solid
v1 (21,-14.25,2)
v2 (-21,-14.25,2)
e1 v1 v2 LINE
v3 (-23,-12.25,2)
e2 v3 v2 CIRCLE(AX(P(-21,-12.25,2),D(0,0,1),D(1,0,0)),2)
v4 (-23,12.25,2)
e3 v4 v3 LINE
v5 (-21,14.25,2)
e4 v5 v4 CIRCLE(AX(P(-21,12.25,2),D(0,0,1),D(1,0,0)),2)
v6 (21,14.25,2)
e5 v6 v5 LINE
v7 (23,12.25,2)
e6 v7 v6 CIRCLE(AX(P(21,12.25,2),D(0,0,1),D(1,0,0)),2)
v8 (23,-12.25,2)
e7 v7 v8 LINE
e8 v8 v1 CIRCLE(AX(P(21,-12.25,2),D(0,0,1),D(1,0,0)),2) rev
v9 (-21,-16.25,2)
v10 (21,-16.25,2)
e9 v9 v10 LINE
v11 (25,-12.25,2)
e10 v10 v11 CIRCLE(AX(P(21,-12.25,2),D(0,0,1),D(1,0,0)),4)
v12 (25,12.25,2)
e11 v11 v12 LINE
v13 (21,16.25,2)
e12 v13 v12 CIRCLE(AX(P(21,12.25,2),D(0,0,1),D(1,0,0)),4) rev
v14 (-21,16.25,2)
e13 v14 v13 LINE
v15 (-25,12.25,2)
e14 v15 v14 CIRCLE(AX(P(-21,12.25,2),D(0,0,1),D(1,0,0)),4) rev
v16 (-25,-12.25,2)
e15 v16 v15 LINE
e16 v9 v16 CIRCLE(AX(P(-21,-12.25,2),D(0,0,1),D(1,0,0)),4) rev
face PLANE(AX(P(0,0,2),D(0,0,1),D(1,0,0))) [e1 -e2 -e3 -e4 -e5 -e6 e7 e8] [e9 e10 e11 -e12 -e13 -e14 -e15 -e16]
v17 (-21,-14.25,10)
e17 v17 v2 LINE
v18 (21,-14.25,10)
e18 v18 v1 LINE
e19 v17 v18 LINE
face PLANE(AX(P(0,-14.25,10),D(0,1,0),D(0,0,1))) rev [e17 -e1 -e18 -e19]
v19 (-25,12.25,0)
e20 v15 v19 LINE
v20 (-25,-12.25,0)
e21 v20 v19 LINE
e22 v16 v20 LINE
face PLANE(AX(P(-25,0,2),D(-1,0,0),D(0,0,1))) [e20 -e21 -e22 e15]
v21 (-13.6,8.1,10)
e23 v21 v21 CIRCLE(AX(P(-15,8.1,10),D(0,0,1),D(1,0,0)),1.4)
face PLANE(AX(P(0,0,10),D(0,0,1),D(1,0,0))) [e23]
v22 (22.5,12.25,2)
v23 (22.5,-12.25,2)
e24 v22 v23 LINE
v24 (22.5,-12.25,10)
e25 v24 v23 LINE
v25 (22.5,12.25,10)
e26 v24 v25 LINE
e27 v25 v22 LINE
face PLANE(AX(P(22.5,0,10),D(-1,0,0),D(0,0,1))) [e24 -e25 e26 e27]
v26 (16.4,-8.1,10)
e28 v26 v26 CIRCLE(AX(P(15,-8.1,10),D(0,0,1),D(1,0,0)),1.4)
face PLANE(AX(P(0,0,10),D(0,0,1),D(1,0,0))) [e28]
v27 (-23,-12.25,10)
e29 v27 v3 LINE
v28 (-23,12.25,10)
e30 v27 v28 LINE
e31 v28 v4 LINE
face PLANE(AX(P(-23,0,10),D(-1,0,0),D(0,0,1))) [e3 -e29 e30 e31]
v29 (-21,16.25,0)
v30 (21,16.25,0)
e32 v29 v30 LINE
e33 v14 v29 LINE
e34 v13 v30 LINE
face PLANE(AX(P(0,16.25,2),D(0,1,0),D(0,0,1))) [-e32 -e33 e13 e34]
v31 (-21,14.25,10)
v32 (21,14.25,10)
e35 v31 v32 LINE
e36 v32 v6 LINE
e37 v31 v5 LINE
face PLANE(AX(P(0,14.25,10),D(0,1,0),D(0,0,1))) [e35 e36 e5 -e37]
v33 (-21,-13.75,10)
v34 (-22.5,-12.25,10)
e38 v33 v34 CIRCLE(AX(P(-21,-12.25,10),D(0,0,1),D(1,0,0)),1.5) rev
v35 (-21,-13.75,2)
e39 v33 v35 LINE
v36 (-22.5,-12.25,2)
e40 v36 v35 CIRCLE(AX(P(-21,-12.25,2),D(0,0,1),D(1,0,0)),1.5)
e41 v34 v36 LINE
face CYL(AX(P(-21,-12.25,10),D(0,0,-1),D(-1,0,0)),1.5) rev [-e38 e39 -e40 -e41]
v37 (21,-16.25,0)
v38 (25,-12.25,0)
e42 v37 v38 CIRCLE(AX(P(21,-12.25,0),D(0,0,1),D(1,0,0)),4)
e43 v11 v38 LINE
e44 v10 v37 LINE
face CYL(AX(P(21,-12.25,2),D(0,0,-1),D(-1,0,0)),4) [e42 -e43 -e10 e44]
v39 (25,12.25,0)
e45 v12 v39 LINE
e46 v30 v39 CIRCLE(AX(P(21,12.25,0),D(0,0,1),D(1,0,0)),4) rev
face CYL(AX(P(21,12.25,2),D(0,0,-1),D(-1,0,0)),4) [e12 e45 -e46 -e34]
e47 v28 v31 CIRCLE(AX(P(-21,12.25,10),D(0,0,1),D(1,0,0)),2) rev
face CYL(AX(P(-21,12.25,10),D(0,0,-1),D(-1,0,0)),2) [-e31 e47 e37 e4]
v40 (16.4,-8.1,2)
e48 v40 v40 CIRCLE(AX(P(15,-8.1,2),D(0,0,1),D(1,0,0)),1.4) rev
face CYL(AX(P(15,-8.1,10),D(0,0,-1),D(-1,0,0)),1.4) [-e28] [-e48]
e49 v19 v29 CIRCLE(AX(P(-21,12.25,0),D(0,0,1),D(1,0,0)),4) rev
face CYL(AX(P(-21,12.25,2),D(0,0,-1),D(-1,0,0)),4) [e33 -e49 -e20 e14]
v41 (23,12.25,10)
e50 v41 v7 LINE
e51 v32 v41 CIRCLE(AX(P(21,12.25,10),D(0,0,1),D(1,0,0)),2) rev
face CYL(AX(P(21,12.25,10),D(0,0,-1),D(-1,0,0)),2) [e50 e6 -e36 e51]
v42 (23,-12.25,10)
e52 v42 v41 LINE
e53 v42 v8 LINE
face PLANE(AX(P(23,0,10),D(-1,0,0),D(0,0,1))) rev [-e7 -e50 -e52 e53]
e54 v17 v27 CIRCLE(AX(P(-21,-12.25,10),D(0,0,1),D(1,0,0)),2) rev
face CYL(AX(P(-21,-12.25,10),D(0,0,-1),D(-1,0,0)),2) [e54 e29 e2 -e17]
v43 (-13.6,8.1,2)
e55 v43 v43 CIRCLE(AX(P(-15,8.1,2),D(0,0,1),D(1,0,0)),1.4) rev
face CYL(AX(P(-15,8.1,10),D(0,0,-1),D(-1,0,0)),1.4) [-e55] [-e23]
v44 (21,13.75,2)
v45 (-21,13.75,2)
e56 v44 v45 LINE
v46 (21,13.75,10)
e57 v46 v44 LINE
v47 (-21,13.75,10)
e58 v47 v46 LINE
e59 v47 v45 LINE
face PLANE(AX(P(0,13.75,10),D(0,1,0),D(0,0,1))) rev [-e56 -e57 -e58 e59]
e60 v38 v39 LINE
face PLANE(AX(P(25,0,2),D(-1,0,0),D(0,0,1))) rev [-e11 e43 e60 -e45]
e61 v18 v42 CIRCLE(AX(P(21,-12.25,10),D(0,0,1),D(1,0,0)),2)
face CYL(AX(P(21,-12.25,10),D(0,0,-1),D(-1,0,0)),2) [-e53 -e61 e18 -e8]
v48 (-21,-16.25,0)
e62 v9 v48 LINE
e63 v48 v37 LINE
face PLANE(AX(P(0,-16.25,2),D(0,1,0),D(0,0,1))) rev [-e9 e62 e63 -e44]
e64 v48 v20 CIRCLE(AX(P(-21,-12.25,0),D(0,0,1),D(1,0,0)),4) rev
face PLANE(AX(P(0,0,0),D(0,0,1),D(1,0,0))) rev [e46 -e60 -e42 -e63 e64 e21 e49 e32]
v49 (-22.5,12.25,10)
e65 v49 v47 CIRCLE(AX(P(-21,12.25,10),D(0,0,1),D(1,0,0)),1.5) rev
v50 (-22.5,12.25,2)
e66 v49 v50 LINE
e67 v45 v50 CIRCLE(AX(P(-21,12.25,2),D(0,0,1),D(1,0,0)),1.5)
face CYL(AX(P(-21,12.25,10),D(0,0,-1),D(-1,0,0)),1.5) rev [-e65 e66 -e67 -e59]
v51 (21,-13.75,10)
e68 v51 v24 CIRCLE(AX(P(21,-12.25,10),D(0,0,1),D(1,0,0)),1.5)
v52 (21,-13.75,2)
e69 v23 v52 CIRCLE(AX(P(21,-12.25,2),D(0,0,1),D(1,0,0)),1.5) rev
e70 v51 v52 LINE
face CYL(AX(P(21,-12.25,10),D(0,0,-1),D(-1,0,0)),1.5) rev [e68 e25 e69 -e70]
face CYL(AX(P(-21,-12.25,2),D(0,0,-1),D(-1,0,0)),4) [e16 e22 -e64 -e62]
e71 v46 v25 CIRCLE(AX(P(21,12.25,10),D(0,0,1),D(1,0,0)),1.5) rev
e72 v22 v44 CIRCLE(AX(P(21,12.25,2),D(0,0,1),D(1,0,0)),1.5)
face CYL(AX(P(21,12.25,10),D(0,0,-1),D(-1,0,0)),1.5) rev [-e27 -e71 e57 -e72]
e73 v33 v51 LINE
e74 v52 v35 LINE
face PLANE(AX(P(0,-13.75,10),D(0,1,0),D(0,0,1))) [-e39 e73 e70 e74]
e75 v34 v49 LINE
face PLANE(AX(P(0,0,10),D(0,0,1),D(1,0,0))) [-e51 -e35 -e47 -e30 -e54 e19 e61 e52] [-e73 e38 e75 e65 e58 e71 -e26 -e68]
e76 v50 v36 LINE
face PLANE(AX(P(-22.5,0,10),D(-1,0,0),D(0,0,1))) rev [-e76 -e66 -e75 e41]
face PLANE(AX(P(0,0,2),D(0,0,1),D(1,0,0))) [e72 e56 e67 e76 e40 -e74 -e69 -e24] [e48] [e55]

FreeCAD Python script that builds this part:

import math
import FreeCAD as App
import Part
import Sketcher

V = App.Vector

doc = App.newDocument("Part")
body = doc.addObject("PartDesign::Body", "Body")

# Sketch on XY plane
sketch1 = doc.addObject("Sketcher::SketchObject", "Sketch")
body.addObject(sketch1)
sketch1.AttachmentSupport = (doc.XY_Plane, [""])
sketch1.MapMode = "FlatFace"
sketch1.addGeometry([
    Part.ArcOfCircle(Part.Circle(V(-21, 12.3, 0), V(0, 0, 1), 4), math.radians(90), math.radians(180)),  # 0
    Part.LineSegment(V(-25, 12.2, 0), V(-25, -12.2, 0)),  # 1
    Part.ArcOfCircle(Part.Circle(V(-21, -12.3, 0), V(0, 0, 1), 4), math.radians(180), math.radians(270)),  # 2
    Part.LineSegment(V(-21, -16.2, 0), V(21, -16.2, 0)),  # 3
    Part.ArcOfCircle(Part.Circle(V(21, -12.3, 0), V(0, 0, 1), 4), math.radians(-90), math.radians(0)),  # 4
    Part.LineSegment(V(25, -12.2, 0), V(25, 12.2, 0)),  # 5
    Part.ArcOfCircle(Part.Circle(V(21, 12.3, 0), V(0, 0, 1), 4), math.radians(0), math.radians(90)),  # 6
    Part.LineSegment(V(21, 16.2, 0), V(-21, 16.2, 0)),  # 7
], False)
sketch1.addConstraint([
    Sketcher.Constraint("Tangent", 0, 2, 1, 1),
    Sketcher.Constraint("Tangent", 1, 2, 2, 1),
    Sketcher.Constraint("Tangent", 2, 2, 3, 1),
    Sketcher.Constraint("Tangent", 3, 2, 4, 1),
    Sketcher.Constraint("Tangent", 4, 2, 5, 1),
    Sketcher.Constraint("Tangent", 5, 2, 6, 1),
    Sketcher.Constraint("Tangent", 6, 2, 7, 1),
    Sketcher.Constraint("Tangent", 7, 2, 0, 1),
    Sketcher.Constraint("Vertical", 1),
    Sketcher.Constraint("Horizontal", 3),
    Sketcher.Constraint("Vertical", 5),
    Sketcher.Constraint("Horizontal", 7),
    Sketcher.Constraint("Equal", 0, 2),
    Sketcher.Constraint("Equal", 2, 4),
    Sketcher.Constraint("Equal", 4, 6),
    Sketcher.Constraint("Symmetric", 0, 3, 4, 3, -1, 1),
    Sketcher.Constraint("Radius", 0, 4.0),
    Sketcher.Constraint("DistanceX", 3, 1, 3, 2, 42.0),
    Sketcher.Constraint("DistanceY", 1, 2, 1, 1, 24.5),
])
pad1 = doc.addObject("PartDesign::Pad", "Pad")
body.addObject(pad1)
pad1.Profile = sketch1
pad1.Length = 2

# Sketch on XY plane
sketch2 = doc.addObject("Sketcher::SketchObject", "Sketch001")
body.addObject(sketch2)
sketch2.AttachmentSupport = (doc.XY_Plane, [""])
sketch2.MapMode = "FlatFace"
sketch2.addGeometry([
    Part.ArcOfCircle(Part.Circle(V(-21, 12.2, 0), V(0, 0, 1), 2), math.radians(90), math.radians(180)),  # 0
    Part.LineSegment(V(-23, 12.2, 0), V(-23, -12.2, 0)),  # 1
    Part.ArcOfCircle(Part.Circle(V(-21, -12.2, 0), V(0, 0, 1), 2), math.radians(-180), math.radians(-90)),  # 2
    Part.LineSegment(V(-21, -14.2, 0), V(21, -14.2, 0)),  # 3
    Part.ArcOfCircle(Part.Circle(V(21, -12.2, 0), V(0, 0, 1), 2), math.radians(-90), math.radians(0)),  # 4
    Part.LineSegment(V(23, -12.2, 0), V(23, 12.2, 0)),  # 5
    Part.ArcOfCircle(Part.Circle(V(21, 12.2, 0), V(0, 0, 1), 2), math.radians(0), math.radians(90)),  # 6
    Part.LineSegment(V(21, 14.2, 0), V(-21, 14.2, 0)),  # 7
    Part.LineSegment(V(-22.5, -12.2, 0), V(-22.5, 12.2, 0)),  # 8
    Part.ArcOfCircle(Part.Circle(V(-21, 12.3, 0), V(0, 0, 1), 1.5), math.radians(90), math.radians(180)),  # 9
    Part.LineSegment(V(-21, 13.8, 0), V(21, 13.8, 0)),  # 10
    Part.ArcOfCircle(Part.Circle(V(21, 12.3, 0), V(0, 0, 1), 1.5), math.radians(0), math.radians(90)),  # 11
    Part.LineSegment(V(22.5, 12.2, 0), V(22.5, -12.2, 0)),  # 12
    Part.ArcOfCircle(Part.Circle(V(21, -12.3, 0), V(0, 0, 1), 1.5), math.radians(-90), math.radians(0)),  # 13
    Part.LineSegment(V(21, -13.8, 0), V(-21, -13.8, 0)),  # 14
    Part.ArcOfCircle(Part.Circle(V(-21, -12.3, 0), V(0, 0, 1), 1.5), math.radians(180), math.radians(270)),  # 15
    Part.Circle(V(15, -8.1, 0), V(0, 0, 1), 1.4),  # 16
    Part.Circle(V(-15, 8.1, 0), V(0, 0, 1), 1.4),  # 17
], False)
sketch2.addConstraint([
    Sketcher.Constraint("Tangent", 0, 2, 1, 1),
    Sketcher.Constraint("Tangent", 1, 2, 2, 1),
    Sketcher.Constraint("Tangent", 2, 2, 3, 1),
    Sketcher.Constraint("Tangent", 3, 2, 4, 1),
    Sketcher.Constraint("Tangent", 4, 2, 5, 1),
    Sketcher.Constraint("Tangent", 5, 2, 6, 1),
    Sketcher.Constraint("Tangent", 6, 2, 7, 1),
    Sketcher.Constraint("Tangent", 7, 2, 0, 1),
    Sketcher.Constraint("Tangent", 8, 2, 9, 2),
    Sketcher.Constraint("Tangent", 9, 1, 10, 1),
    Sketcher.Constraint("Tangent", 10, 2, 11, 2),
    Sketcher.Constraint("Tangent", 11, 1, 12, 1),
    Sketcher.Constraint("Tangent", 12, 2, 13, 2),
    Sketcher.Constraint("Tangent", 13, 1, 14, 1),
    Sketcher.Constraint("Tangent", 14, 2, 15, 2),
    Sketcher.Constraint("Tangent", 15, 1, 8, 1),
    Sketcher.Constraint("Vertical", 1),
    Sketcher.Constraint("Horizontal", 3),
    Sketcher.Constraint("Vertical", 5),
    Sketcher.Constraint("Horizontal", 7),
    Sketcher.Constraint("Vertical", 8),
    Sketcher.Constraint("Horizontal", 10),
    Sketcher.Constraint("Vertical", 12),
    Sketcher.Constraint("Horizontal", 14),
    Sketcher.Constraint("Coincident", 9, 3, 0, 3),
    Sketcher.Constraint("Coincident", 11, 3, 6, 3),
    Sketcher.Constraint("Coincident", 13, 3, 4, 3),
    Sketcher.Constraint("Equal", 0, 2),
    Sketcher.Constraint("Equal", 2, 4),
    Sketcher.Constraint("Equal", 4, 6),
    Sketcher.Constraint("Equal", 13, 15),
    Sketcher.Constraint("Equal", 16, 17),
    Sketcher.Constraint("Symmetric", 0, 3, 4, 3, -1, 1),
    Sketcher.Constraint("Symmetric", 16, 3, 17, 3, -1, 1),
    Sketcher.Constraint("Radius", 0, 2.0),
    Sketcher.Constraint("Diameter", 16, 2.8),
    Sketcher.Constraint("Radius", 9, 1.5),
    Sketcher.Constraint("DistanceX", 3, 1, 3, 2, 42.0),
    Sketcher.Constraint("DistanceY", 1, 2, 1, 1, 24.5),
    Sketcher.Constraint("DistanceX", -1, 1, 16, 3, 15.0),
    Sketcher.Constraint("DistanceY", 16, 3, -1, 1, 8.1),
])
pad2 = doc.addObject("PartDesign::Pad", "Pad001")
body.addObject(pad2)
pad2.Profile = sketch2
pad2.Length = 10

doc.recompute()
